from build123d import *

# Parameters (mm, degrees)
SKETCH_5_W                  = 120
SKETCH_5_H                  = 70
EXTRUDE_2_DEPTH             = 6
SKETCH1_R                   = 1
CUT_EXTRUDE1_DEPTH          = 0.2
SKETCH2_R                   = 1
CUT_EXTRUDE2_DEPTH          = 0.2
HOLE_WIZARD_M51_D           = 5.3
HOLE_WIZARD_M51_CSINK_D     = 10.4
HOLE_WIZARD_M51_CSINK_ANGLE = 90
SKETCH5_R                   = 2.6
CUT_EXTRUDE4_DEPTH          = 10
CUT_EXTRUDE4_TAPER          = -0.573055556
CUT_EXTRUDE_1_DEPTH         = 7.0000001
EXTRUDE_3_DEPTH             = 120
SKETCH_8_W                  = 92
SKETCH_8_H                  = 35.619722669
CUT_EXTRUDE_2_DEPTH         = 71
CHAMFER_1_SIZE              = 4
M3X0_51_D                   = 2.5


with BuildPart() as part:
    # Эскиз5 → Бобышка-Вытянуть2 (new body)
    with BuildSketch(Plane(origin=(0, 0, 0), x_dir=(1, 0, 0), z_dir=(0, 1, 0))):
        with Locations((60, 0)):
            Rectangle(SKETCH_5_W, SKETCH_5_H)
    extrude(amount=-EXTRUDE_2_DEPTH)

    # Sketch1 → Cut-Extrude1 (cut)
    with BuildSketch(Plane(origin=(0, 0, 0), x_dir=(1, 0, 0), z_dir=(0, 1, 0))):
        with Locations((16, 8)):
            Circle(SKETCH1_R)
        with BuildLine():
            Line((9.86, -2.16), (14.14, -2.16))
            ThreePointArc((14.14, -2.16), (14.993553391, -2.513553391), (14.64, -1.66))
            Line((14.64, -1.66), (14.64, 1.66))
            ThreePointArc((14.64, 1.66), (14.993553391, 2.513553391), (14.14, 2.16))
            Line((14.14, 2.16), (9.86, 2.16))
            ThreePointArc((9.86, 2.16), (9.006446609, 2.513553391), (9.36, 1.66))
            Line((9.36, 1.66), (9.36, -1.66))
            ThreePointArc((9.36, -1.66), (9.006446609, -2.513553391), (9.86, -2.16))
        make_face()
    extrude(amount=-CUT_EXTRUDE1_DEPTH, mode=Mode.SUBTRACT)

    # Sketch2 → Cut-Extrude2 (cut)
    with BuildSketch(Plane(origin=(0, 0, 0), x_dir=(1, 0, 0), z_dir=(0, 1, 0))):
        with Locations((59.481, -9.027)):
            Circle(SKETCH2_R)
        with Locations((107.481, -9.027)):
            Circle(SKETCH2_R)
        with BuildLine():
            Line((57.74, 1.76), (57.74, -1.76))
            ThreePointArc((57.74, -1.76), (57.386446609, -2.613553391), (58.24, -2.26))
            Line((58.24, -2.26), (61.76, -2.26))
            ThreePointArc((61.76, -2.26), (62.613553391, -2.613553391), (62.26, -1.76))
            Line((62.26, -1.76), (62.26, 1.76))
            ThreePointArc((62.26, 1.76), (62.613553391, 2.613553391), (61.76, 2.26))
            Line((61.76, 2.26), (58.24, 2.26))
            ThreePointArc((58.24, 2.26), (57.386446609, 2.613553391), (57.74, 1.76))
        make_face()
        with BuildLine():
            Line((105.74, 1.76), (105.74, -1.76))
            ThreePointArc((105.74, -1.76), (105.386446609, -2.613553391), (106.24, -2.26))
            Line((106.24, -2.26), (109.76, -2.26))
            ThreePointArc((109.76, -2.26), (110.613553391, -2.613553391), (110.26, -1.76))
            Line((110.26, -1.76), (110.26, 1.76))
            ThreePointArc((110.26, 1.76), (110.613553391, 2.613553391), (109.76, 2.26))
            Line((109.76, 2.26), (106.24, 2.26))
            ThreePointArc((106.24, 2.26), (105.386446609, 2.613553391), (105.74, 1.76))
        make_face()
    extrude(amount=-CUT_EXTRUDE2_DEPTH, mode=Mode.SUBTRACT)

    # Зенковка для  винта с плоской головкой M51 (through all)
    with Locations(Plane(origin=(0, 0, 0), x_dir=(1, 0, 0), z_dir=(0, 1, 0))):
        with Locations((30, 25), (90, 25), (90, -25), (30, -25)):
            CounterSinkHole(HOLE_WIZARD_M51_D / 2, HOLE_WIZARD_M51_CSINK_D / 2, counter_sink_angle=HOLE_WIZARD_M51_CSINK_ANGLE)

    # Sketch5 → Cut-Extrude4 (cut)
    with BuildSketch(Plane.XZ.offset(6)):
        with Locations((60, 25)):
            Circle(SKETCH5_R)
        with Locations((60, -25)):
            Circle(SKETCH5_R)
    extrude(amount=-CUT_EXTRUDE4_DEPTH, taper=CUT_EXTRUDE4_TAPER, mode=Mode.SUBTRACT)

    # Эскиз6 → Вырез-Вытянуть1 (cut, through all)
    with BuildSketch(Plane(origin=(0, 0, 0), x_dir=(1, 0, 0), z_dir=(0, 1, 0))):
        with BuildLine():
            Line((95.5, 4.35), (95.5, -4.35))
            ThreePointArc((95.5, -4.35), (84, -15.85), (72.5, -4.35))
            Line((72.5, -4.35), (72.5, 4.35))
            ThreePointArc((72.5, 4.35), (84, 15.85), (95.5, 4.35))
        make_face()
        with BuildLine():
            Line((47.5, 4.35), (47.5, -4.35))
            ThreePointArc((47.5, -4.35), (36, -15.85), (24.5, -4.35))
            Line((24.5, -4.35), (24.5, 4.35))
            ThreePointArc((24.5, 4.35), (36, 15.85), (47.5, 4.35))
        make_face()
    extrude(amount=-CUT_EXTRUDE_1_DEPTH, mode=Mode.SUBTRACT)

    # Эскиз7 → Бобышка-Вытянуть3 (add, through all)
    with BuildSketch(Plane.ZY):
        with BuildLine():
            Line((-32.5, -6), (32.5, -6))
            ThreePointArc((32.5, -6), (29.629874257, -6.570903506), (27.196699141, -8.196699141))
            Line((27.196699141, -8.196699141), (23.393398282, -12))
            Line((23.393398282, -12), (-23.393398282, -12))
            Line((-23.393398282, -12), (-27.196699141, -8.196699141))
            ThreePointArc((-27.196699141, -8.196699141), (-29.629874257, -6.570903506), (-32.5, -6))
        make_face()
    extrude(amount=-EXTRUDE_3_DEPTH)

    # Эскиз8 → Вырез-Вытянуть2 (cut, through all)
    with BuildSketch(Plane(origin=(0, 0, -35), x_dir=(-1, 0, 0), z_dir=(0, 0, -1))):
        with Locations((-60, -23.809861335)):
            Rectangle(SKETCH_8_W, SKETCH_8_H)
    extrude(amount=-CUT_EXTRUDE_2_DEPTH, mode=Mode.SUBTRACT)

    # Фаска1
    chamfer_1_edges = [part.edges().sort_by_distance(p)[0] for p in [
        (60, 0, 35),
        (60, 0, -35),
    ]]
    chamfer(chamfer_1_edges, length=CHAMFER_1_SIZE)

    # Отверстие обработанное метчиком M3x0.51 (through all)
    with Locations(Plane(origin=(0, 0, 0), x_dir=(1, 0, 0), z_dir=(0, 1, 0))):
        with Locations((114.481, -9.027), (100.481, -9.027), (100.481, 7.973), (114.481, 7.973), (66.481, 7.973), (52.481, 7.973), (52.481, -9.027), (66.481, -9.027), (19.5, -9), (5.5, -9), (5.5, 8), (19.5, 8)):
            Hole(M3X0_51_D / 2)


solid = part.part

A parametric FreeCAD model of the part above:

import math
import FreeCAD as App
import Part
import Sketcher
from FreeCAD import Vector
Q = App.Units.Quantity


def edges_at(feature, points):
    """Names of the edges that pass closest to the given points."""
    edges = feature.Shape.Edges
    near = lambda p: min(range(len(edges)), key=lambda i: edges[i].distToShape(Part.Vertex(*p))[0])
    return sorted({f"Edge{near(p) + 1}" for p in points})


def add_polygon(sketch, points):
    """Adds a closed chain of lines whose ends are joined by coincident constraints."""
    first, n = sketch.GeometryCount, len(points)
    for a, b in zip(points, points[1:] + points[:1]):
        sketch.addGeometry(Part.LineSegment(App.Vector(*a, 0), App.Vector(*b, 0)), False)
    for i in range(n):
        sketch.addConstraint(Sketcher.Constraint("Coincident", first + i, 2, first + (i + 1) % n, 1))

doc = App.newDocument("Part")
body = doc.addObject("PartDesign::Body", "Body")

sketch1 = body.newObject("Sketcher::SketchObject", "Sketch")
sketch1.AttachmentSupport = (doc.getObject("XZ_Plane"), [""])
sketch1.MapMode = "FlatFace"
add_polygon(sketch1, [(0, -35), (0, 35), (120, 35), (120, -35)])
sketch1.addConstraint([
    Sketcher.Constraint("Vertical", 0),
    Sketcher.Constraint("Horizontal", 1),
    Sketcher.Constraint("Vertical", 2),
    Sketcher.Constraint("Horizontal", 3),
    Sketcher.Constraint("Symmetric", 0, 2, 3, 2, -1, 1),
    Sketcher.Constraint("DistanceX", 1, 1, 1, 2, Q("120 mm")),
    Sketcher.Constraint("DistanceY", 0, 1, 0, 2, Q("70 mm")),
])
pad1 = body.newObject("PartDesign::Pad", "Pad")
pad1.Profile = sketch1
pad1.Length = 6

sketch2 = body.newObject("Sketcher::SketchObject", "Sketch001")
sketch2.AttachmentSupport = (doc.getObject("XZ_Plane"), [""])
sketch2.MapMode = "FlatFace"
sketch2.addGeometry([
    Part.Circle(Vector(16, -8, 0), Vector(0, 0, 1), 1),
    Part.LineSegment(Vector(9.9, 2.2, 0), Vector(14.1, 2.2, 0)),
    Part.ArcOfCircle(Part.Circle(Vector(14.6, 2.2, 0), Vector(0, 0, 1), 0.5), math.radians(-90), math.radians(180)),
    Part.LineSegment(Vector(14.6, 1.7, 0), Vector(14.6, -1.7, 0)),
    Part.ArcOfCircle(Part.Circle(Vector(14.6, -2.2, 0), Vector(0, 0, 1), 0.5), math.radians(180), math.radians(450)),
    Part.LineSegment(Vector(14.1, -2.2, 0), Vector(9.9, -2.2, 0)),
    Part.ArcOfCircle(Part.Circle(Vector(9.4, -2.2, 0), Vector(0, 0, 1), 0.5), math.radians(90), math.radians(360)),
    Part.LineSegment(Vector(9.4, -1.7, 0), Vector(9.4, 1.7, 0)),
    Part.ArcOfCircle(Part.Circle(Vector(9.4, 2.2, 0), Vector(0, 0, 1), 0.5), math.radians(0), math.radians(270)),
], False)
sketch2.addConstraint([
    Sketcher.Constraint("Coincident", 1, 2, 2, 2),
    Sketcher.Constraint("Coincident", 2, 1, 3, 1),
    Sketcher.Constraint("Coincident", 3, 2, 4, 2),
    Sketcher.Constraint("Coincident", 4, 1, 5, 1),
    Sketcher.Constraint("Coincident", 5, 2, 6, 2),
    Sketcher.Constraint("Coincident", 6, 1, 7, 1),
    Sketcher.Constraint("Coincident", 7, 2, 8, 2),
    Sketcher.Constraint("Coincident", 8, 1, 1, 1),
    Sketcher.Constraint("Horizontal", 1),
    Sketcher.Constraint("Vertical", 3),
    Sketcher.Constraint("Horizontal", 5),
    Sketcher.Constraint("Vertical", 7),
    Sketcher.Constraint("Equal", 2, 4),
    Sketcher.Constraint("Equal", 4, 6),
    Sketcher.Constraint("Equal", 6, 8),
    Sketcher.Constraint("Symmetric", 2, 3, 4, 3, -1),
    Sketcher.Constraint("Symmetric", 6, 3, 8, 3, -1),
    Sketcher.Constraint("Horizontal", 4, 3, 6, 3),
    Sketcher.Constraint("Horizontal", 8, 3, 1, 2),
    Sketcher.Constraint("Horizontal", 6, 3, 4, 1),
    Sketcher.Constraint("Vertical", 4, 3, 2, 1),
    Sketcher.Constraint("Vertical", 8, 3, 6, 1),
    Sketcher.Constraint("Diameter", 0, Q("2 mm")),
    Sketcher.Constraint("Radius", 2, Q("0.5 mm")),
    Sketcher.Constraint("DistanceX", -1, 1, 0, 3, Q("16 mm")),
    Sketcher.Constraint("DistanceY", 0, 3, -1, 1, Q("8 mm")),
    Sketcher.Constraint("DistanceX", 1, 1, 1, 2, Q("4.28 mm")),
    Sketcher.Constraint("DistanceY", 3, 2, 3, 1, Q("3.32 mm")),
    Sketcher.Constraint("DistanceX", -1, 1, 2, 3, Q("14.64 mm")),
])
pocket1 = body.newObject("PartDesign::Pocket", "Pocket")
pocket1.Profile = sketch2
pocket1.Length = 0.2
pocket1.Reversed = True

sketch3 = body.newObject("Sketcher::SketchObject", "Sketch002")
sketch3.AttachmentSupport = (doc.getObject("XZ_Plane"), [""])
sketch3.MapMode = "FlatFace"
sketch3.addGeometry([
    Part.Circle(Vector(59.5, 9, 0), Vector(0, 0, 1), 1),
    Part.Circle(Vector(107.5, 9, 0), Vector(0, 0, 1), 1),
    Part.LineSegment(Vector(57.7, -1.8, 0), Vector(57.7, 1.8, 0)),
    Part.ArcOfCircle(Part.Circle(Vector(57.7, 2.3, 0), Vector(0, 0, 1), 0.5), math.radians(0), math.radians(270)),
    Part.LineSegment(Vector(58.2, 2.3, 0), Vector(61.8, 2.3, 0)),
    Part.ArcOfCircle(Part.Circle(Vector(62.3, 2.3, 0), Vector(0, 0, 1), 0.5), math.radians(-90), math.radians(180)),
    Part.LineSegment(Vector(62.3, 1.8, 0), Vector(62.3, -1.8, 0)),
    Part.ArcOfCircle(Part.Circle(Vector(62.3, -2.3, 0), Vector(0, 0, 1), 0.5), math.radians(180), math.radians(450)),
    Part.LineSegment(Vector(61.8, -2.3, 0), Vector(58.2, -2.3, 0)),
    Part.ArcOfCircle(Part.Circle(Vector(57.7, -2.3, 0), Vector(0, 0, 1), 0.5), math.radians(90), math.radians(360)),
    Part.LineSegment(Vector(105.7, -1.8, 0), Vector(105.7, 1.8, 0)),
    Part.ArcOfCircle(Part.Circle(Vector(105.7, 2.3, 0), Vector(0, 0, 1), 0.5), math.radians(0), math.radians(270)),
    Part.LineSegment(Vector(106.2, 2.3, 0), Vector(109.8, 2.3, 0)),
    Part.ArcOfCircle(Part.Circle(Vector(110.3, 2.3, 0), Vector(0, 0, 1), 0.5), math.radians(-90), math.radians(180)),
    Part.LineSegment(Vector(110.3, 1.8, 0), Vector(110.3, -1.8, 0)),
    Part.ArcOfCircle(Part.Circle(Vector(110.3, -2.3, 0), Vector(0, 0, 1), 0.5), math.radians(180), math.radians(450)),
    Part.LineSegment(Vector(109.8, -2.3, 0), Vector(106.2, -2.3, 0)),
    Part.ArcOfCircle(Part.Circle(Vector(105.7, -2.3, 0), Vector(0, 0, 1), 0.5), math.radians(90), math.radians(360)),
], False)
sketch3.addConstraint([
    Sketcher.Constraint("Coincident", 2, 2, 3, 2),
    Sketcher.Constraint("Coincident", 3, 1, 4, 1),
    Sketcher.Constraint("Coincident", 4, 2, 5, 2),
    Sketcher.Constraint("Coincident", 5, 1, 6, 1),
    Sketcher.Constraint("Coincident", 6, 2, 7, 2),
    Sketcher.Constraint("Coincident", 7, 1, 8, 1),
    Sketcher.Constraint("Coincident", 8, 2, 9, 2),
    Sketcher.Constraint("Coincident", 9, 1, 2, 1),
    Sketcher.Constraint("Coincident", 10, 2, 11, 2),
    Sketcher.Constraint("Coincident", 11, 1, 12, 1),
    Sketcher.Constraint("Coincident", 12, 2, 13, 2),
    Sketcher.Constraint("Coincident", 13, 1, 14, 1),
    Sketcher.Constraint("Coincident", 14, 2, 15, 2),
    Sketcher.Constraint("Coincident", 15, 1, 16, 1),
    Sketcher.Constraint("Coincident", 16, 2, 17, 2),
    Sketcher.Constraint("Coincident", 17, 1, 10, 1),
    Sketcher.Constraint("Vertical", 2),
    Sketcher.Constraint("Horizontal", 4),
    Sketcher.Constraint("Vertical", 6),
    Sketcher.Constraint("Horizontal", 8),
    Sketcher.Constraint("Vertical", 10),
    Sketcher.Constraint("Horizontal", 12),
    Sketcher.Constraint("Vertical", 14),
    Sketcher.Constraint("Horizontal", 16),
    Sketcher.Constraint("Equal", 0, 1),
    Sketcher.Constraint("Equal", 3, 5),
    Sketcher.Constraint("Equal", 5, 7),
    Sketcher.Constraint("Equal", 7, 9),
    Sketcher.Constraint("Equal", 9, 11),
    Sketcher.Constraint("Equal", 11, 13),
    Sketcher.Constraint("Equal", 13, 15),
    Sketcher.Constraint("Equal", 15, 17),
    Sketcher.Constraint("Symmetric", 5, 3, 7, 3, -1),
    Sketcher.Constraint("Symmetric", 3, 3, 9, 3, -1),
    Sketcher.Constraint("Symmetric", 13, 3, 15, 3, -1),
    Sketcher.Constraint("Symmetric", 11, 3, 17, 3, -1),
    Sketcher.Constraint("Horizontal", 0, 3, 1, 3),
    Sketcher.Constraint("Horizontal", 3, 3, 5, 3),
    Sketcher.Constraint("Horizontal", 5, 3, 11, 3),
    Sketcher.Constraint("Horizontal", 11, 3, 13, 3),
    Sketcher.Constraint("Horizontal", 13, 3, 3, 1),
    Sketcher.Constraint("Horizontal", 17, 3, 7, 1),
    Sketcher.Constraint("Horizontal", 4, 2, 11, 1),
    Sketcher.Constraint("Horizontal", 8, 2, 15, 1),
    Sketcher.Constraint("Vertical", 9, 3, 2, 2),
    Sketcher.Constraint("Vertical", 7, 3, 5, 1),
    Sketcher.Constraint("Vertical", 17, 3, 10, 2),
    Sketcher.Constraint("Vertical", 15, 3, 13, 1),
    Sketcher.Constraint("Equal", 8, 12),
    Sketcher.Constraint("Equal", 16, 2),
    Sketcher.Constraint("Diameter", 0, Q("2 mm")),
    Sketcher.Constraint("Radius", 3, Q("0.5 mm")),
    Sketcher.Constraint("DistanceX", 0, 3, 1, 3, Q("48 mm")),
    Sketcher.Constraint("DistanceX", 3, 3, 11, 3, Q("48 mm")),
    Sketcher.Constraint("DistanceX", 4, 1, 4, 2, Q("3.52 mm")),
    Sketcher.Constraint("DistanceX", -1, 1, 3, 3, Q("57.74 mm")),
    Sketcher.Constraint("DistanceX", -1, 1, 0, 3, Q("59.481 mm")),
    Sketcher.Constraint("DistanceY", -1, 1, 0, 3, Q("9.027 mm")),
])
pocket2 = body.newObject("PartDesign::Pocket", "Pocket001")
pocket2.Profile = sketch3
pocket2.Length = 0.2
pocket2.Reversed = True

sketch4 = body.newObject("Sketcher::SketchObject", "Sketch003")
sketch4.AttachmentSupport = (doc.getObject("XZ_Plane"), [""])
sketch4.MapMode = "FlatFace"
sketch4.addGeometry([
    Part.Circle(Vector(30, -25, 0), Vector(0, 0, 1), 2.6),
    Part.Circle(Vector(90, -25, 0), Vector(0, 0, 1), 2.6),
    Part.Circle(Vector(90, 25, 0), Vector(0, 0, 1), 2.6),
    Part.Circle(Vector(30, 25, 0), Vector(0, 0, 1), 2.6),
], False)
sketch4.addConstraint([
    Sketcher.Constraint("Equal", 0, 1),
    Sketcher.Constraint("Equal", 1, 2),
    Sketcher.Constraint("Equal", 2, 3),
    Sketcher.Constraint("Symmetric", 1, 3, 2, 3, -1),
    Sketcher.Constraint("Symmetric", 0, 3, 3, 3, -1),
    Sketcher.Constraint("Horizontal", 0, 3, 1, 3),
    Sketcher.Constraint("Diameter", 0, Q("5.3 mm")),
    Sketcher.Constraint("DistanceX", -1, 1, 0, 3, Q("30 mm")),
    Sketcher.Constraint("DistanceY", 0, 3, -1, 1, Q("25 mm")),
    Sketcher.Constraint("DistanceX", -1, 1, 1, 3, Q("90 mm")),
])
doc.recompute()
hole = body.newObject("PartDesign::Hole", "Hole")
hole.Profile = sketch4
hole.ThreadType = "None"
hole.Diameter = 5.3
hole.DepthType = "ThroughAll"
hole.HoleCutType = "Countersink"
hole.HoleCutDiameter = 10.4
hole.HoleCutCountersinkAngle = 90
hole.Reversed = True

sketch5 = body.newObject("Sketcher::SketchObject", "Sketch004")
sketch5.AttachmentSupport = (doc.getObject("XZ_Plane"), [""])
sketch5.MapMode = "FlatFace"
sketch5.AttachmentOffset = App.Placement(Vector(0, 0, 6), App.Rotation())
sketch5.addGeometry([
    Part.Circle(Vector(60, 25, 0), Vector(0, 0, 1), 2.6),
    Part.Circle(Vector(60, -25, 0), Vector(0, 0, 1), 2.6),
], False)
sketch5.addConstraint([
    Sketcher.Constraint("Equal", 0, 1),
    Sketcher.Constraint("Symmetric", 0, 3, 1, 3, -1),
    Sketcher.Constraint("Diameter", 0, Q("5.2 mm")),
    Sketcher.Constraint("DistanceX", -1, 1, 0, 3, Q("60 mm")),
    Sketcher.Constraint("DistanceY", -1, 1, 0, 3, Q("25 mm")),
])
pocket3 = body.newObject("PartDesign::Pocket", "Pocket002")
pocket3.Profile = sketch5
pocket3.Length = 10
pocket3.TaperAngle = 0.573056

sketch6 = body.newObject("Sketcher::SketchObject", "Sketch005")
sketch6.AttachmentSupport = (doc.getObject("XZ_Plane"), [""])
sketch6.MapMode = "FlatFace"
sketch6.addGeometry([
    Part.LineSegment(Vector(96, 4, 0), Vector(96, -4, 0)),
    Part.ArcOfCircle(Part.Circle(Vector(84, -4, 0), Vector(0, 0, 1), 12), math.radians(180), math.radians(360)),
    Part.LineSegment(Vector(72, -4, 0), Vector(72, 4, 0)),
    Part.ArcOfCircle(Part.Circle(Vector(84, 4, 0), Vector(0, 0, 1), 12), math.radians(0), math.radians(180)),
    Part.LineSegment(Vector(48, 4, 0), Vector(48, -4, 0)),
    Part.ArcOfCircle(Part.Circle(Vector(36, -4, 0), Vector(0, 0, 1), 12), math.radians(180), math.radians(360)),
    Part.LineSegment(Vector(24, -4, 0), Vector(24, 4, 0)),
    Part.ArcOfCircle(Part.Circle(Vector(36, 4, 0), Vector(0, 0, 1), 12), math.radians(0), math.radians(180)),
], False)
sketch6.addConstraint([
    Sketcher.Constraint("Tangent", 0, 2, 1, 2),
    Sketcher.Constraint("Tangent", 1, 1, 2, 1),
    Sketcher.Constraint("Tangent", 2, 2, 3, 2),
    Sketcher.Constraint("Tangent", 3, 1, 0, 1),
    Sketcher.Constraint("Tangent", 4, 2, 5, 2),
    Sketcher.Constraint("Tangent", 5, 1, 6, 1),
    Sketcher.Constraint("Tangent", 6, 2, 7, 2),
    Sketcher.Constraint("Tangent", 7, 1, 4, 1),
    Sketcher.Constraint("Vertical", 0),
    Sketcher.Constraint("Vertical", 2),
    Sketcher.Constraint("Vertical", 4),
    Sketcher.Constraint("Vertical", 6),
    Sketcher.Constraint("Equal", 3, 5),
    Sketcher.Constraint("Horizontal", 1, 3, 5, 3),
    Sketcher.Constraint("Horizontal", 3, 3, 7, 3),
    Sketcher.Constraint("Radius", 1, Q("11.5 mm")),
    Sketcher.Constraint("DistanceY", 0, 2, 0, 1, Q("8.7 mm")),
    Sketcher.Constraint("DistanceX", -1, 1, 1, 3, Q("84 mm")),
    Sketcher.Constraint("DistanceX", -1, 1, 5, 3, Q("36 mm")),
    Sketcher.Constraint("DistanceY", 1, 3, -1, 1, Q("4.35 mm")),
])
pocket4 = body.newObject("PartDesign::Pocket", "Pocket003")
pocket4.Profile = sketch6
pocket4.Type = "ThroughAll"
pocket4.Reversed = True

sketch7 = body.newObject("Sketcher::SketchObject", "Sketch006")
sketch7.AttachmentSupport = (doc.getObject("YZ_Plane"), [""])
sketch7.MapMode = "FlatFace"
sketch7.addGeometry([
    Part.LineSegment(Vector(-6, 32, 0), Vector(-6, -32, 0)),
    Part.ArcOfCircle(Part.Circle(Vector(-13, -32, 0), Vector(0, 0, 1), 7), math.radians(0), math.radians(45)),
    Part.LineSegment(Vector(-8, -27, 0), Vector(-12, -23, 0)),
    Part.LineSegment(Vector(-12, -23, 0), Vector(-12, 23, 0)),
    Part.LineSegment(Vector(-12, 23, 0), Vector(-8, 27, 0)),
    Part.ArcOfCircle(Part.Circle(Vector(-13, 32, 0), Vector(0, 0, 1), 7), math.radians(-45), math.radians(0)),
], False)
sketch7.addConstraint([
    Sketcher.Constraint("Tangent", 0, 2, 1, 1),
    Sketcher.Constraint("Tangent", 1, 2, 2, 1),
    Sketcher.Constraint("Coincident", 2, 2, 3, 1),
    Sketcher.Constraint("Coincident", 3, 2, 4, 1),
    Sketcher.Constraint("Tangent", 4, 2, 5, 1),
    Sketcher.Constraint("Tangent", 5, 2, 0, 1),
    Sketcher.Constraint("Vertical", 0),
    Sketcher.Constraint("Vertical", 3),
    Sketcher.Constraint("Equal", 1, 5),
    Sketcher.Constraint("Symmetric", 1, 2, 4, 2, -1),
    Sketcher.Constraint("Perpendicular", 2, 4),
    Sketcher.Constraint("Radius", 1, Q("7.5 mm")),
    Sketcher.Constraint("DistanceY", 0, 2, 0, 1, Q("65 mm")),
    Sketcher.Constraint("DistanceX", 0, 2, -1, 1, Q("6 mm")),
    Sketcher.Constraint("DistanceX", 2, 2, -1, 1, Q("12 mm")),
])
pad2 = body.newObject("PartDesign::Pad", "Pad001")
pad2.Profile = sketch7
pad2.Length = 120

sketch8 = body.newObject("Sketcher::SketchObject", "Sketch007")
sketch8.AttachmentSupport = (doc.getObject("XY_Plane"), [""])
sketch8.MapMode = "FlatFace"
sketch8.AttachmentOffset = App.Placement(Vector(0, 0, -35), App.Rotation())
add_polygon(sketch8, [(106, -6), (106, -42), (14, -42), (14, -6)])
sketch8.addConstraint([
    Sketcher.Constraint("Vertical", 0),
    Sketcher.Constraint("Horizontal", 1),
    Sketcher.Constraint("Vertical", 2),
    Sketcher.Constraint("Horizontal", 3),
    Sketcher.Constraint("DistanceX", 1, 2, 1, 1, Q("92 mm")),
    Sketcher.Constraint("DistanceX", -1, 1, 0, 2, Q("106 mm")),
    Sketcher.Constraint("DistanceY", 2, 2, -1, 1, Q("6 mm")),
    Sketcher.Constraint("DistanceY", 0, 2, 0, 1, Q("35.619723 mm")),
])
pocket5 = body.newObject("PartDesign::Pocket", "Pocket004")
pocket5.Profile = sketch8
pocket5.Type = "ThroughAll"
pocket5.Reversed = True
doc.recompute()

chamfer = body.newObject("PartDesign::Chamfer", "Chamfer")
chamfer.Base = (pocket5, edges_at(pocket5, [(60, 0, 35), (60, 0, -35)]))
chamfer.Size = 4

sketch9 = body.newObject("Sketcher::SketchObject", "Sketch008")
sketch9.AttachmentSupport = (doc.getObject("XZ_Plane"), [""])
sketch9.MapMode = "FlatFace"
sketch9.addGeometry([
    Part.Circle(Vector(114.5, 9, 0), Vector(0, 0, 1), 1.2),
    Part.Circle(Vector(100.5, 9, 0), Vector(0, 0, 1), 1.2),
    Part.Circle(Vector(100.5, -8, 0), Vector(0, 0, 1), 1.2),
    Part.Circle(Vector(114.5, -8, 0), Vector(0, 0, 1), 1.2),
    Part.Circle(Vector(66.5, -8, 0), Vector(0, 0, 1), 1.2),
    Part.Circle(Vector(52.5, -8, 0), Vector(0, 0, 1), 1.2),
    Part.Circle(Vector(52.5, 9, 0), Vector(0, 0, 1), 1.2),
    Part.Circle(Vector(66.5, 9, 0), Vector(0, 0, 1), 1.2),
    Part.Circle(Vector(19.5, 9, 0), Vector(0, 0, 1), 1.2),
    Part.Circle(Vector(5.5, 9, 0), Vector(0, 0, 1), 1.2),
    Part.Circle(Vector(5.5, -8, 0), Vector(0, 0, 1), 1.2),
    Part.Circle(Vector(19.5, -8, 0), Vector(0, 0, 1), 1.2),
], False)
sketch9.addConstraint([
    Sketcher.Constraint("Equal", 0, 1),
    Sketcher.Constraint("Equal", 1, 2),
    Sketcher.Constraint("Equal", 2, 3),
    Sketcher.Constraint("Equal", 3, 4),
    Sketcher.Constraint("Equal", 4, 5),
    Sketcher.Constraint("Equal", 5, 6),
    Sketcher.Constraint("Equal", 6, 7),
    Sketcher.Constraint("Equal", 7, 8),
    Sketcher.Constraint("Equal", 8, 9),
    Sketcher.Constraint("Equal", 9, 10),
    Sketcher.Constraint("Equal", 10, 11),
    Sketcher.Constraint("Horizontal", 0, 3, 1, 3),
    Sketcher.Constraint("Horizontal", 2, 3, 3, 3),
    Sketcher.Constraint("Horizontal", 3, 3, 4, 3),
    Sketcher.Constraint("Horizontal", 4, 3, 5, 3),
    Sketcher.Constraint("Horizontal", 1, 3, 6, 3),
    Sketcher.Constraint("Horizontal", 6, 3, 7, 3),
    Sketcher.Constraint("Horizontal", 8, 3, 9, 3),
    Sketcher.Constraint("Horizontal", 10, 3, 11, 3),
    Sketcher.Constraint("Vertical", 1, 3, 2, 3),
    Sketcher.Constraint("Vertical", 0, 3, 3, 3),
    Sketcher.Constraint("Vertical", 5, 3, 6, 3),
    Sketcher.Constraint("Vertical", 4, 3, 7, 3),
    Sketcher.Constraint("Vertical", 9, 3, 10, 3),
    Sketcher.Constraint("Vertical", 8, 3, 11, 3),
    Sketcher.Constraint("Diameter", 0, Q("2.5 mm")),
    Sketcher.Constraint("DistanceY", -1, 1, 8, 3, Q("9 mm")),
    Sketcher.Constraint("DistanceY", 10, 3, -1, 1, Q("8 mm")),
    Sketcher.Constraint("DistanceX", 1, 3, 0, 3, Q("14 mm")),
    Sketcher.Constraint("DistanceY", 2, 3, 1, 3, Q("17 mm")),
    Sketcher.Constraint("DistanceX", 4, 3, 2, 3, Q("34 mm")),
    Sketcher.Constraint("DistanceX", 5, 3, 4, 3, Q("14 mm")),
    Sketcher.Constraint("DistanceX", 9, 3, 8, 3, Q("14 mm")),
    Sketcher.Constraint("DistanceX", -1, 1, 8, 3, Q("19.5 mm")),
    Sketcher.Constraint("DistanceX", -1, 1, 0, 3, Q("114.481 mm")),
    Sketcher.Constraint("DistanceY", -1, 1, 0, 3, Q("9.027 mm")),
])
doc.recompute()
hole2 = body.newObject("PartDesign::Hole", "Hole001")
hole2.Profile = sketch9
hole2.ThreadType = "None"
hole2.Diameter = 2.5
hole2.DepthType = "ThroughAll"
hole2.Reversed = True

doc.recompute()
